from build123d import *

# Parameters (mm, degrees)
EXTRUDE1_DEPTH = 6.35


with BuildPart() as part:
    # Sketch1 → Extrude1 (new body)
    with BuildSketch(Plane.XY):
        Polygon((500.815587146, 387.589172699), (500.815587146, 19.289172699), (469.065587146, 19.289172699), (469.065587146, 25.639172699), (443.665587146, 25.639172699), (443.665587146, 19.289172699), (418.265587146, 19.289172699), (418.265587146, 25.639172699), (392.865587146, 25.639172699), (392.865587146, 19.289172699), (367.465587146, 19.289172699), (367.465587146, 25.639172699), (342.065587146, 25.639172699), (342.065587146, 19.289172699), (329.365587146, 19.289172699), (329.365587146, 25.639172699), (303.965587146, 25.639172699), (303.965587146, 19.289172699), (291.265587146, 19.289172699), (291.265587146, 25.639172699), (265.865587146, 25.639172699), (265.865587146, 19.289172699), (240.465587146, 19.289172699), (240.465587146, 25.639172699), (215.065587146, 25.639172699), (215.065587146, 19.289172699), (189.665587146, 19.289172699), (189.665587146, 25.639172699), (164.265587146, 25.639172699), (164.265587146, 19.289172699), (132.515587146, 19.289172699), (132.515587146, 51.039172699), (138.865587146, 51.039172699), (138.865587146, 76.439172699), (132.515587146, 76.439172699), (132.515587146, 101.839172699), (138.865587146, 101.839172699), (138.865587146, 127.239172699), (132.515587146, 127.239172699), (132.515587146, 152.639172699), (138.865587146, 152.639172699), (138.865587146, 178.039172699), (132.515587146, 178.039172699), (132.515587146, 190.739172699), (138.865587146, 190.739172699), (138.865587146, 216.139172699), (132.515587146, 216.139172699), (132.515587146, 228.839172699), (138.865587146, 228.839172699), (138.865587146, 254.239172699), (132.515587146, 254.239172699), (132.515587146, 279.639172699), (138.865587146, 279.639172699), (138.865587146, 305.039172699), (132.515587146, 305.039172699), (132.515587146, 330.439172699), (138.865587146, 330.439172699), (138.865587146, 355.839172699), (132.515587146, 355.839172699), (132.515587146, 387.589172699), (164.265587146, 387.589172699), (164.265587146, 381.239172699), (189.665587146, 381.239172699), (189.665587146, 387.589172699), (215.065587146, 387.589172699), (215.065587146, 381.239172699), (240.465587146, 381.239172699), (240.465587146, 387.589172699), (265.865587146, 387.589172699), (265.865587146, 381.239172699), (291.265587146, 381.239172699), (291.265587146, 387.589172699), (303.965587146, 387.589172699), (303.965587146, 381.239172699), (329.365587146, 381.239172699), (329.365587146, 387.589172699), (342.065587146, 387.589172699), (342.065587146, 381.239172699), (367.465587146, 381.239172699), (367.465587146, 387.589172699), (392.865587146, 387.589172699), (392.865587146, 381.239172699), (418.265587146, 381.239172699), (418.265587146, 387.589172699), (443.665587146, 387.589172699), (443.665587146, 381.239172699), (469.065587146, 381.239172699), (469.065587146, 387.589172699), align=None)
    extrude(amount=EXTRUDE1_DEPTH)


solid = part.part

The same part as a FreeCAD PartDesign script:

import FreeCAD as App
import Part
import Sketcher
Q = App.Units.Quantity


def add_polygon(sketch, points):
    """Adds a closed chain of lines whose ends are joined by coincident constraints."""
    first, n = sketch.GeometryCount, len(points)
    for a, b in zip(points, points[1:] + points[:1]):
        sketch.addGeometry(Part.LineSegment(App.Vector(*a, 0), App.Vector(*b, 0)), False)
    for i in range(n):
        sketch.addConstraint(Sketcher.Constraint("Coincident", first + i, 2, first + (i + 1) % n, 1))

doc = App.newDocument("Part")
body = doc.addObject("PartDesign::Body", "Body")

sketch1 = doc.addObject("Sketcher::SketchObject", "Sketch")
body.addObject(sketch1)
sketch1.AttachmentSupport = (doc.XY_Plane, [""])
sketch1.MapMode = "FlatFace"
add_polygon(sketch1, [(500.815587, 19.289173), (500.815587, 387.589173), (469.065587, 387.589173), (469.065587, 381.239173), (443.665587, 381.239173), (443.665587, 387.589173), (418.265587, 387.589173), (418.265587, 381.239173), (392.865587, 381.239173), (392.865587, 387.589173), (367.465587, 387.589173), (367.465587, 381.239173), (342.065587, 381.239173), (342.065587, 387.589173), (329.365587, 387.589173), (329.365587, 381.239173), (303.965587, 381.239173), (303.965587, 387.589173), (291.265587, 387.589173), (291.265587, 381.239173), (265.865587, 381.239173), (265.865587, 387.589173), (240.465587, 387.589173), (240.465587, 381.239173), (215.065587, 381.239173), (215.065587, 387.589173), (189.665587, 387.589173), (189.665587, 381.239173), (164.265587, 381.239173), (164.265587, 387.589173), (132.515587, 387.589173), (132.515587, 355.839173), (138.865587, 355.839173), (138.865587, 330.439173), (132.515587, 330.439173), (132.515587, 305.039173), (138.865587, 305.039173), (138.865587, 279.639173), (132.515587, 279.639173), (132.515587, 254.239173), (138.865587, 254.239173), (138.865587, 228.839173), (132.515587, 228.839173), (132.515587, 216.139173), (138.865587, 216.139173), (138.865587, 190.739173), (132.515587, 190.739173), (132.515587, 178.039173), (138.865587, 178.039173), (138.865587, 152.639173), (132.515587, 152.639173), (132.515587, 127.239173), (138.865587, 127.239173), (138.865587, 101.839173), (132.515587, 101.839173), (132.515587, 76.439173), (138.865587, 76.439173), (138.865587, 51.039173), (132.515587, 51.039173), (132.515587, 19.289173), (164.265587, 19.289173), (164.265587, 25.639173), (189.665587, 25.639173), (189.665587, 19.289173), (215.065587, 19.289173), (215.065587, 25.639173), (240.465587, 25.639173), (240.465587, 19.289173), (265.865587, 19.289173), (265.865587, 25.639173), (291.265587, 25.639173), (291.265587, 19.289173), (303.965587, 19.289173), (303.965587, 25.639173), (329.365587, 25.639173), (329.365587, 19.289173), (342.065587, 19.289173), (342.065587, 25.639173), (367.465587, 25.639173), (367.465587, 19.289173), (392.865587, 19.289173), (392.865587, 25.639173), (418.265587, 25.639173), (418.265587, 19.289173), (443.665587, 19.289173), (443.665587, 25.639173), (469.065587, 25.639173), (469.065587, 19.289173)])
sketch1.addConstraint([
    Sketcher.Constraint("Vertical", 0),
    Sketcher.Constraint("Horizontal", 1),
    Sketcher.Constraint("Vertical", 2),
    Sketcher.Constraint("Horizontal", 3),
    Sketcher.Constraint("Vertical", 4),
    Sketcher.Constraint("Horizontal", 5),
    Sketcher.Constraint("Vertical", 6),
    Sketcher.Constraint("Horizontal", 7),
    Sketcher.Constraint("Vertical", 8),
    Sketcher.Constraint("Horizontal", 9),
    Sketcher.Constraint("Vertical", 10),
    Sketcher.Constraint("Horizontal", 11),
    Sketcher.Constraint("Vertical", 12),
    Sketcher.Constraint("Horizontal", 13),
    Sketcher.Constraint("Vertical", 14),
    Sketcher.Constraint("Horizontal", 15),
    Sketcher.Constraint("Vertical", 16),
    Sketcher.Constraint("Horizontal", 17),
    Sketcher.Constraint("Vertical", 18),
    Sketcher.Constraint("Horizontal", 19),
    Sketcher.Constraint("Vertical", 20),
    Sketcher.Constraint("Horizontal", 21),
    Sketcher.Constraint("Vertical", 22),
    Sketcher.Constraint("Horizontal", 23),
    Sketcher.Constraint("Vertical", 24),
    Sketcher.Constraint("Horizontal", 25),
    Sketcher.Constraint("Vertical", 26),
    Sketcher.Constraint("Horizontal", 27),
    Sketcher.Constraint("Vertical", 28),
    Sketcher.Constraint("Horizontal", 29),
    Sketcher.Constraint("Vertical", 30),
    Sketcher.Constraint("Horizontal", 31),
    Sketcher.Constraint("Vertical", 32),
    Sketcher.Constraint("Horizontal", 33),
    Sketcher.Constraint("Vertical", 34),
    Sketcher.Constraint("Horizontal", 35),
    Sketcher.Constraint("Vertical", 36),
    Sketcher.Constraint("Horizontal", 37),
    Sketcher.Constraint("Vertical", 38),
    Sketcher.Constraint("Horizontal", 39),
    Sketcher.Constraint("Vertical", 40),
    Sketcher.Constraint("Horizontal", 41),
    Sketcher.Constraint("Vertical", 42),
    Sketcher.Constraint("Horizontal", 43),
    Sketcher.Constraint("Vertical", 44),
    Sketcher.Constraint("Horizontal", 45),
    Sketcher.Constraint("Vertical", 46),
    Sketcher.Constraint("Horizontal", 47),
    Sketcher.Constraint("Vertical", 48),
    Sketcher.Constraint("Horizontal", 49),
    Sketcher.Constraint("Vertical", 50),
    Sketcher.Constraint("Horizontal", 51),
    Sketcher.Constraint("Vertical", 52),
    Sketcher.Constraint("Horizontal", 53),
    Sketcher.Constraint("Vertical", 54),
    Sketcher.Constraint("Horizontal", 55),
    Sketcher.Constraint("Vertical", 56),
    Sketcher.Constraint("Horizontal", 57),
    Sketcher.Constraint("Vertical", 58),
    Sketcher.Constraint("Horizontal", 59),
    Sketcher.Constraint("Vertical", 60),
    Sketcher.Constraint("Horizontal", 61),
    Sketcher.Constraint("Vertical", 62),
    Sketcher.Constraint("Horizontal", 63),
    Sketcher.Constraint("Vertical", 64),
    Sketcher.Constraint("Horizontal", 65),
    Sketcher.Constraint("Vertical", 66),
    Sketcher.Constraint("Horizontal", 67),
    Sketcher.Constraint("Vertical", 68),
    Sketcher.Constraint("Horizontal", 69),
    Sketcher.Constraint("Vertical", 70),
    Sketcher.Constraint("Horizontal", 71),
    Sketcher.Constraint("Vertical", 72),
    Sketcher.Constraint("Horizontal", 73),
    Sketcher.Constraint("Vertical", 74),
    Sketcher.Constraint("Horizontal", 75),
    Sketcher.Constraint("Vertical", 76),
    Sketcher.Constraint("Horizontal", 77),
    Sketcher.Constraint("Vertical", 78),
    Sketcher.Constraint("Horizontal", 79),
    Sketcher.Constraint("Vertical", 80),
    Sketcher.Constraint("Horizontal", 81),
    Sketcher.Constraint("Vertical", 82),
    Sketcher.Constraint("Horizontal", 83),
    Sketcher.Constraint("Vertical", 84),
    Sketcher.Constraint("Horizontal", 85),
    Sketcher.Constraint("Vertical", 86),
    Sketcher.Constraint("Horizontal", 87),
    Sketcher.Constraint("Horizontal", 1, 2, 4, 2),
    Sketcher.Constraint("Horizontal", 3, 2, 6, 2),
    Sketcher.Constraint("Horizontal", 5, 2, 8, 2),
    Sketcher.Constraint("Horizontal", 7, 2, 10, 2),
    Sketcher.Constraint("Horizontal", 9, 2, 12, 2),
    Sketcher.Constraint("Horizontal", 11, 2, 14, 2),
    Sketcher.Constraint("Horizontal", 13, 2, 16, 2),
    Sketcher.Constraint("Horizontal", 15, 2, 18, 2),
    Sketcher.Constraint("Horizontal", 17, 2, 20, 2),
    Sketcher.Constraint("Horizontal", 19, 2, 22, 2),
    Sketcher.Constraint("Horizontal", 21, 2, 24, 2),
    Sketcher.Constraint("Horizontal", 23, 2, 26, 2),
    Sketcher.Constraint("Horizontal", 25, 2, 28, 2),
    Sketcher.Constraint("Horizontal", 59, 2, 62, 2),
    Sketcher.Constraint("Horizontal", 61, 2, 64, 2),
    Sketcher.Constraint("Horizontal", 63, 2, 66, 2),
    Sketcher.Constraint("Horizontal", 65, 2, 68, 2),
    Sketcher.Constraint("Horizontal", 67, 2, 70, 2),
    Sketcher.Constraint("Horizontal", 69, 2, 72, 2),
    Sketcher.Constraint("Horizontal", 71, 2, 74, 2),
    Sketcher.Constraint("Horizontal", 73, 2, 76, 2),
    Sketcher.Constraint("Horizontal", 75, 2, 78, 2),
    Sketcher.Constraint("Horizontal", 77, 2, 80, 2),
    Sketcher.Constraint("Horizontal", 79, 2, 82, 2),
    Sketcher.Constraint("Horizontal", 81, 2, 84, 2),
    Sketcher.Constraint("Horizontal", 83, 2, 86, 2),
    Sketcher.Constraint("Vertical", 30, 2, 33, 2),
    Sketcher.Constraint("Vertical", 32, 2, 35, 2),
    Sketcher.Constraint("Vertical", 34, 2, 37, 2),
    Sketcher.Constraint("Vertical", 36, 2, 39, 2),
    Sketcher.Constraint("Vertical", 38, 2, 41, 2),
    Sketcher.Constraint("Vertical", 40, 2, 43, 2),
    Sketcher.Constraint("Vertical", 42, 2, 45, 2),
    Sketcher.Constraint("Vertical", 44, 2, 47, 2),
    Sketcher.Constraint("Vertical", 46, 2, 49, 2),
    Sketcher.Constraint("Vertical", 48, 2, 51, 2),
    Sketcher.Constraint("Vertical", 50, 2, 53, 2),
    Sketcher.Constraint("Vertical", 52, 2, 55, 2),
    Sketcher.Constraint("Vertical", 54, 2, 57, 2),
    Sketcher.Constraint("Vertical", 28, 2, 59, 2),
    Sketcher.Constraint("Vertical", 26, 2, 61, 2),
    Sketcher.Constraint("Vertical", 24, 2, 63, 2),
    Sketcher.Constraint("Vertical", 22, 2, 65, 2),
    Sketcher.Constraint("Vertical", 20, 2, 67, 2),
    Sketcher.Constraint("Vertical", 18, 2, 69, 2),
    Sketcher.Constraint("Vertical", 16, 2, 71, 2),
    Sketcher.Constraint("Vertical", 14, 2, 73, 2),
    Sketcher.Constraint("Vertical", 12, 2, 75, 2),
    Sketcher.Constraint("Vertical", 10, 2, 77, 2),
    Sketcher.Constraint("Vertical", 8, 2, 79, 2),
    Sketcher.Constraint("Vertical", 6, 2, 81, 2),
    Sketcher.Constraint("Vertical", 4, 2, 83, 2),
    Sketcher.Constraint("Vertical", 2, 2, 85, 2),
    Sketcher.Constraint("Equal", 3, 5),
    Sketcher.Constraint("Equal", 5, 7),
    Sketcher.Constraint("Equal", 7, 9),
    Sketcher.Constraint("Equal", 9, 11),
    Sketcher.Constraint("Equal", 11, 15),
    Sketcher.Constraint("Equal", 13, 17),
    Sketcher.Constraint("Equal", 15, 19),
    Sketcher.Constraint("Equal", 19, 21),
    Sketcher.Constraint("Equal", 21, 23),
    Sketcher.Constraint("Equal", 23, 25),
    Sketcher.Constraint("Equal", 25, 27),
    Sketcher.Constraint("Equal", 1, 29),
    Sketcher.Constraint("Equal", 57, 2),
    Sketcher.Constraint("Equal", 87, 30),
    Sketcher.Constraint("Equal", 85, 32),
    Sketcher.Constraint("Equal", 32, 34),
    Sketcher.Constraint("Equal", 34, 36),
    Sketcher.Constraint("Equal", 36, 38),
    Sketcher.Constraint("Equal", 38, 40),
    Sketcher.Constraint("Equal", 75, 42),
    Sketcher.Constraint("Equal", 40, 44),
    Sketcher.Constraint("Equal", 42, 46),
    Sketcher.Constraint("Equal", 44, 48),
    Sketcher.Constraint("Equal", 48, 50),
    Sketcher.Constraint("Equal", 50, 52),
    Sketcher.Constraint("Equal", 52, 54),
    Sketcher.Constraint("Equal", 54, 56),
    Sketcher.Constraint("Equal", 30, 58),
    Sketcher.Constraint("Equal", 28, 60),
    Sketcher.Constraint("DistanceX", 3, 2, 3, 1, Q("1 in")),
    Sketcher.Constraint("DistanceX", 13, 2, 13, 1, Q("0.5 in")),
    Sketcher.Constraint("DistanceY", 0, 1, 0, 2, Q("14.5 in")),
    Sketcher.Constraint("DistanceX", 31, 1, 31, 2, Q("0.25 in")),
    Sketcher.Constraint("DistanceX", -1, 1, 0, 2, 500.815587),
    Sketcher.Constraint("DistanceY", -1, 1, 0, 2, 387.589173),
])
pad1 = doc.addObject("PartDesign::Pad", "Pad")
body.addObject(pad1)
pad1.Profile = sketch1
pad1.Length = Q("0.25 in")

doc.recompute()
